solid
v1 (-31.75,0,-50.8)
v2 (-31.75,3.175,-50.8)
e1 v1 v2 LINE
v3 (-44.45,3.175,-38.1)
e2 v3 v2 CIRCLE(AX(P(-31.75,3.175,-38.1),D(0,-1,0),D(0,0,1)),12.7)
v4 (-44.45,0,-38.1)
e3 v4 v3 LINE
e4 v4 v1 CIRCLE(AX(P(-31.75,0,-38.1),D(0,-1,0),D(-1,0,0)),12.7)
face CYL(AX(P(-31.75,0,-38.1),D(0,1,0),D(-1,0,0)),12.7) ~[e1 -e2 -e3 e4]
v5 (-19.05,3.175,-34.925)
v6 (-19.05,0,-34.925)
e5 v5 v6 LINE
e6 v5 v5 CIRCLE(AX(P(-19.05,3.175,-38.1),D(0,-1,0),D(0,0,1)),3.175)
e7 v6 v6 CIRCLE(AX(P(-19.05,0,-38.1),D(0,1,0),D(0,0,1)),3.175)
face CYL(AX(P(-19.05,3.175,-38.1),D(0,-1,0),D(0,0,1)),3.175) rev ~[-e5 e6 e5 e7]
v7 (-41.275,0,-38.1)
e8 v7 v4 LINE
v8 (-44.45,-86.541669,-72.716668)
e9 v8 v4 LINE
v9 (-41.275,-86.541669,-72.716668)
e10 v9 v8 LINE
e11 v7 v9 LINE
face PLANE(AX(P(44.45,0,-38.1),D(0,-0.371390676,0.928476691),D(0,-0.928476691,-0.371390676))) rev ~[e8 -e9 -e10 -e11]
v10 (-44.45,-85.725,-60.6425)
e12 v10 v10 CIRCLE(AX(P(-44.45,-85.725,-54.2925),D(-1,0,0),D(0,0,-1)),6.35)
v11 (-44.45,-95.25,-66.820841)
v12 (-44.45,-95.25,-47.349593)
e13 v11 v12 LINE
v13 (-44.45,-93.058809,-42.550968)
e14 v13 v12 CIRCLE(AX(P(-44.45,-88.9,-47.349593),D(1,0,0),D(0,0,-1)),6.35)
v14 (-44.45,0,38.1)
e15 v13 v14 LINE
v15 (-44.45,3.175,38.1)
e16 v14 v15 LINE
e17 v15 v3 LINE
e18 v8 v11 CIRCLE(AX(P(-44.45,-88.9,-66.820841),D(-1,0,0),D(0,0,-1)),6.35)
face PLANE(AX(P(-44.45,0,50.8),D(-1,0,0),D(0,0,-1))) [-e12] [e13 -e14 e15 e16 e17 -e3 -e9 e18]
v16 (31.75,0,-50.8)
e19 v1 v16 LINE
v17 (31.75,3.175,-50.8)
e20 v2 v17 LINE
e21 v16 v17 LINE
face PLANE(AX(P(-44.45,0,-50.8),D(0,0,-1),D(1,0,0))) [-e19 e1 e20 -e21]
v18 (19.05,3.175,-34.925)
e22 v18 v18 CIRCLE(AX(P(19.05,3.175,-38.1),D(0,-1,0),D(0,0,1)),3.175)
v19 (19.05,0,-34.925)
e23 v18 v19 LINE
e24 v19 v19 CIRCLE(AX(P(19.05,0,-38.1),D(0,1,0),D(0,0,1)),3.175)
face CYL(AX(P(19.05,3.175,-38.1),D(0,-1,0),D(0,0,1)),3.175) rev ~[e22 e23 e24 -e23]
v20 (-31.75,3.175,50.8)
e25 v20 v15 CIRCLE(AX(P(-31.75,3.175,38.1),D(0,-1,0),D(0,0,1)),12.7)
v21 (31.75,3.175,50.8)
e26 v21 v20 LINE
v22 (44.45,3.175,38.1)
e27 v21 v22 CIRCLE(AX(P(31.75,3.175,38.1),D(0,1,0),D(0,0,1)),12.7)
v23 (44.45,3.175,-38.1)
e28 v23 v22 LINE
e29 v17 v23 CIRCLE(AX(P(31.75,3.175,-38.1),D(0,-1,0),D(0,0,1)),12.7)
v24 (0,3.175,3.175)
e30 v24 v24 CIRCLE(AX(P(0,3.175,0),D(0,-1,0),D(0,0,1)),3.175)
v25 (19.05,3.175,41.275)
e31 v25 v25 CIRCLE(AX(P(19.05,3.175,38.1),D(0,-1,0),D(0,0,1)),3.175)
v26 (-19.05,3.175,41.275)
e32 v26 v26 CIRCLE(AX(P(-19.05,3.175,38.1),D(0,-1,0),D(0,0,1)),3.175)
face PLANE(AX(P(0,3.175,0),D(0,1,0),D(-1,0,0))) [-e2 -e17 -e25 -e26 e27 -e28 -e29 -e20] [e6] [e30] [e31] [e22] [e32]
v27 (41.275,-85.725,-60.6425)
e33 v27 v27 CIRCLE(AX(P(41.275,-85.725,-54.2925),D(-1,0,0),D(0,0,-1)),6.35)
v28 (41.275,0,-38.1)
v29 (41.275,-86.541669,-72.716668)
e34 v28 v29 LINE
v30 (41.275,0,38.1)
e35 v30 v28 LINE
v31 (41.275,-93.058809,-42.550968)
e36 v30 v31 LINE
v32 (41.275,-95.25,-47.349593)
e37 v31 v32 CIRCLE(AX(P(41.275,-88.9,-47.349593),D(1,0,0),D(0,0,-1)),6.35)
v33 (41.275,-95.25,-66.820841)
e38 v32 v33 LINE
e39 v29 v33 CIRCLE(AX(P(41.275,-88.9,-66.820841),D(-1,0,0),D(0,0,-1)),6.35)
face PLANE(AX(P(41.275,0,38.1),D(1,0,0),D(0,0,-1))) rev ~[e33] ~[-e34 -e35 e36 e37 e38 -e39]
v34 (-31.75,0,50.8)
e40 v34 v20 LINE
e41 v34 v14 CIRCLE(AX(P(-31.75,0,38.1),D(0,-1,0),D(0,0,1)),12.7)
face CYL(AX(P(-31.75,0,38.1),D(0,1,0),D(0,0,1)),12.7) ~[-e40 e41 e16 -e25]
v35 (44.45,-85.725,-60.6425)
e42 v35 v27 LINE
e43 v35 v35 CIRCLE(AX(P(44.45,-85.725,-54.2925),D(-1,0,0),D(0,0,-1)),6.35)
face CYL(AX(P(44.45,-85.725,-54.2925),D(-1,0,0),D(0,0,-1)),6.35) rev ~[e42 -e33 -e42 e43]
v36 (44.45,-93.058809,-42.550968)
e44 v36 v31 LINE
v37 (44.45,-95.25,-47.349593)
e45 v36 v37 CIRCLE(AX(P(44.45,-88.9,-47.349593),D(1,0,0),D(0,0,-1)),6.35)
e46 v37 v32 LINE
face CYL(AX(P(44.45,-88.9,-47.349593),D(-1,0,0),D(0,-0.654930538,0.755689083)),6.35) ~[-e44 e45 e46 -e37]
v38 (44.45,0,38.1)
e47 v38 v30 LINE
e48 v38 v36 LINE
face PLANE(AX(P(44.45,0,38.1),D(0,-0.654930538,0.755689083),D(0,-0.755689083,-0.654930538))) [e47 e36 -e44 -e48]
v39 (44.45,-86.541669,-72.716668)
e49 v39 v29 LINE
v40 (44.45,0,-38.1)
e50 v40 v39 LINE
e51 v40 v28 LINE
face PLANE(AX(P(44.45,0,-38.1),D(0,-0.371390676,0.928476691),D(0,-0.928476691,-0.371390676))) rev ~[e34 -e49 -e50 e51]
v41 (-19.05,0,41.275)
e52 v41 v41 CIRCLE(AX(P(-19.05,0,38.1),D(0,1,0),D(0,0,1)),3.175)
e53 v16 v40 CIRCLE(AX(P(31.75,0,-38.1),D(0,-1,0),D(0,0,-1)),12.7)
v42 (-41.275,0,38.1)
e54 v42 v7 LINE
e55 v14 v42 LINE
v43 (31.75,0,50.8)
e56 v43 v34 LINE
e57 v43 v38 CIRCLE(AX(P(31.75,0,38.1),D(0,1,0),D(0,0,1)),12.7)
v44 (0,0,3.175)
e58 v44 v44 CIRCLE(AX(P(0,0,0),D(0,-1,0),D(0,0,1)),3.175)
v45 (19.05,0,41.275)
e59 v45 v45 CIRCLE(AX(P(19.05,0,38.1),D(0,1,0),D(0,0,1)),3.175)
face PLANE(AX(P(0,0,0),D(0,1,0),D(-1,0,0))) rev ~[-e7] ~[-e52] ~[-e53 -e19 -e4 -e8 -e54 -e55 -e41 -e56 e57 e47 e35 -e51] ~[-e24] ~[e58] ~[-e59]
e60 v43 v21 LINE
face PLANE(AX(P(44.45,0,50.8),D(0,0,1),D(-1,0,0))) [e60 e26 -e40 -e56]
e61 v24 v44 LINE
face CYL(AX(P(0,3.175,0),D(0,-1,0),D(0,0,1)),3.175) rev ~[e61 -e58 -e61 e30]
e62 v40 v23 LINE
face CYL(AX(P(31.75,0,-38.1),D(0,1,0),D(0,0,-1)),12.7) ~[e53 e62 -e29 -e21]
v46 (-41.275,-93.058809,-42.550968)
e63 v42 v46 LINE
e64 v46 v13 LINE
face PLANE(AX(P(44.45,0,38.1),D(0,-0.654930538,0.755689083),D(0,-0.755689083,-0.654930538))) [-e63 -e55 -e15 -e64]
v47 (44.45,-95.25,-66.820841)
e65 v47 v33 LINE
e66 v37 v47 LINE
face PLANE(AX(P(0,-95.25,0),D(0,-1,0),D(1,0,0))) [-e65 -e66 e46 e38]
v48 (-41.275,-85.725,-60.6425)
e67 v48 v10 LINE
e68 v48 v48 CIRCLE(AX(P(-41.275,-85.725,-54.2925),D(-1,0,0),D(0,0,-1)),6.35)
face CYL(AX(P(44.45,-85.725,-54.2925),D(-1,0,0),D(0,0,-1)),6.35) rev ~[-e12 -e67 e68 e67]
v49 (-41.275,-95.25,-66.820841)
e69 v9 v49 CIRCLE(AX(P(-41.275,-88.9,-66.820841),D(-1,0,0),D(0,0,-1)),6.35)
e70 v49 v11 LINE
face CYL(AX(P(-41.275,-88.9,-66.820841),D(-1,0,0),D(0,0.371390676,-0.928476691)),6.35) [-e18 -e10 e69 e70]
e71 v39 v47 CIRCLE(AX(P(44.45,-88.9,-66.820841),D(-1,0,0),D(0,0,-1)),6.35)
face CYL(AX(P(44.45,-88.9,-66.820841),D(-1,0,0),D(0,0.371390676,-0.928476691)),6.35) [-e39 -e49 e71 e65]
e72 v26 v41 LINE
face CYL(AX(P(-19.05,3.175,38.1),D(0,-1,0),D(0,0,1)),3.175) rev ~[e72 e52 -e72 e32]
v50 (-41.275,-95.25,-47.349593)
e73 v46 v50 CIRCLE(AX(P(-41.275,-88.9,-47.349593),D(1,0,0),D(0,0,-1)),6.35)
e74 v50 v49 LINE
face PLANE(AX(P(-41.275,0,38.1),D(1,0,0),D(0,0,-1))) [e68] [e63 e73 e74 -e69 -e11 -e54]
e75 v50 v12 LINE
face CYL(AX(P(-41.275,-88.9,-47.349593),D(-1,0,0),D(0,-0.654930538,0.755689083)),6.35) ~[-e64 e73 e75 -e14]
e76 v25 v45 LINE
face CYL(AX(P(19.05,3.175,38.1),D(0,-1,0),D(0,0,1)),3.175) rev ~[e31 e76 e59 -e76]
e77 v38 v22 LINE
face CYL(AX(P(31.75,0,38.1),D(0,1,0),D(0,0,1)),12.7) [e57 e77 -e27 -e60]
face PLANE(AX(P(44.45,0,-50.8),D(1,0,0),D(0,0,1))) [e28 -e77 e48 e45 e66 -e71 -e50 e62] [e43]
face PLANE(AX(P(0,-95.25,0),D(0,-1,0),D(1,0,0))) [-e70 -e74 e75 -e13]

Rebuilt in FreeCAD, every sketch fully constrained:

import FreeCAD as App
import Part
import Sketcher
from FreeCAD import Vector
Q = App.Units.Quantity


def edges_at(feature, points):
    """Names of the edges that pass closest to the given points."""
    edges = feature.Shape.Edges
    near = lambda p: min(range(len(edges)), key=lambda i: edges[i].distToShape(Part.Vertex(*p))[0])
    return sorted({f"Edge{near(p) + 1}" for p in points})

doc = App.newDocument("Part")
body = doc.addObject("PartDesign::Body", "Body")

sketch1 = body.newObject("Sketcher::SketchObject", "Sketch")
sketch1.AttachmentSupport = (doc.getObject("XZ_Plane"), [""])
sketch1.MapMode = "FlatFace"
sketch1.addGeometry([
    Part.LineSegment(Vector(-44.45, 50.8, 0), Vector(44.45, 50.8, 0)),
    Part.LineSegment(Vector(44.45, 50.8, 0), Vector(44.45, -50.8, 0)),
    Part.LineSegment(Vector(44.45, -50.8, 0), Vector(-44.45, -50.8, 0)),
    Part.LineSegment(Vector(-44.45, -50.8, 0), Vector(-44.45, 50.8, 0)),
], False)
sketch1.addConstraint([
    Sketcher.Constraint("Coincident", 0, 2, 1, 1),
    Sketcher.Constraint("Coincident", 1, 2, 2, 1),
    Sketcher.Constraint("Coincident", 2, 2, 3, 1),
    Sketcher.Constraint("Coincident", 3, 2, 0, 1),
    Sketcher.Constraint("Horizontal", 0),
    Sketcher.Constraint("Vertical", 1),
    Sketcher.Constraint("Horizontal", 2),
    Sketcher.Constraint("Vertical", 3),
    Sketcher.Constraint("Symmetric", 0, 2, 2, 2, -1, 1),
    Sketcher.Constraint("DistanceY", -1, 1, 0, 2, Q("2 in")),
    Sketcher.Constraint("DistanceX", -1, 1, 0, 2, Q("1.75 in")),
])
pad1 = body.newObject("PartDesign::Pad", "Pad")
pad1.Profile = sketch1
pad1.Length = Q("0.125 in")
pad1.Reversed = True
doc.recompute()

fillet = body.newObject("PartDesign::Fillet", "Fillet")
fillet.Base = (pad1, edges_at(pad1, [
    (44.45, 1.587, 50.8),
    (-44.45, 1.587, 50.8),
    (44.45, 1.587, -50.8),
    (-44.45, 1.587, -50.8),
]))
fillet.Radius = Q("0.5 in")

sketch2 = body.newObject("Sketcher::SketchObject", "Sketch001")
sketch2.AttachmentSupport = (doc.getObject("XZ_Plane"), [""])
sketch2.MapMode = "FlatFace"
sketch2.AttachmentOffset = App.Placement(Vector(0, 0, -0.125 * 25.4), App.Rotation())
sketch2.addGeometry([
    Part.Circle(Vector(-19.05, -38.1, 0), Vector(0, 0, 1), 3.175),
    Part.Circle(Vector(19.05, -38.1, 0), Vector(0, 0, 1), 3.175),
    Part.Circle(Vector(19.05, 38.1, 0), Vector(0, 0, 1), 3.175),
    Part.Circle(Vector(-19.05, 38.1, 0), Vector(0, 0, 1), 3.175),
    Part.Circle(Vector(0, 0, 0), Vector(0, 0, 1), 3.175),
], False)
sketch2.addConstraint([
    Sketcher.Constraint("Coincident", 4, 3, -1, 1),
    Sketcher.Constraint("Equal", 0, 1),
    Sketcher.Constraint("Equal", 1, 2),
    Sketcher.Constraint("Equal", 2, 3),
    Sketcher.Constraint("Equal", 3, 4),
    Sketcher.Constraint("Symmetric", 0, 3, 2, 3, -1, 1),
    Sketcher.Constraint("Symmetric", 1, 3, 3, 3, -1, 1),
    Sketcher.Constraint("Symmetric", 0, 3, 1, 3, -2),
    Sketcher.Constraint("Diameter", 0, Q("0.25 in")),
    Sketcher.Constraint("DistanceY", 1, 3, 2, 3, Q("3 in")),
    Sketcher.Constraint("DistanceX", 0, 3, 1, 3, Q("1.5 in")),
])
doc.recompute()
hole = body.newObject("PartDesign::Hole", "Hole")
hole.Profile = sketch2
hole.ThreadType = "None"
hole.Diameter = Q("0.25 in")
hole.DepthType = "ThroughAll"
hole.Reversed = True

sketch3 = body.newObject("Sketcher::SketchObject", "Sketch002")
sketch3.AttachmentSupport = (doc.getObject("XZ_Plane"), [""])
sketch3.MapMode = "FlatFace"
sketch3.addGeometry([
    Part.LineSegment(Vector(44.45, -88.9, 0), Vector(44.45, 38.1, 0)),
    Part.LineSegment(Vector(44.45, 38.1, 0), Vector(41.275, 38.1, 0)),
    Part.LineSegment(Vector(41.275, 38.1, 0), Vector(41.275, -88.9, 0)),
    Part.LineSegment(Vector(41.275, -88.9, 0), Vector(44.45, -88.9, 0)),
    Part.LineSegment(Vector(-41.275, 38.1, 0), Vector(-44.45, 38.1, 0)),
    Part.LineSegment(Vector(-44.45, 38.1, 0), Vector(-44.45, -88.9, 0)),
    Part.LineSegment(Vector(-44.45, -88.9, 0), Vector(-41.275, -88.9, 0)),
    Part.LineSegment(Vector(-41.275, -88.9, 0), Vector(-41.275, 38.1, 0)),
], False)
sketch3.addConstraint([
    Sketcher.Constraint("Coincident", 0, 2, 1, 1),
    Sketcher.Constraint("Coincident", 1, 2, 2, 1),
    Sketcher.Constraint("Coincident", 2, 2, 3, 1),
    Sketcher.Constraint("Coincident", 3, 2, 0, 1),
    Sketcher.Constraint("Coincident", 4, 2, 5, 1),
    Sketcher.Constraint("Coincident", 5, 2, 6, 1),
    Sketcher.Constraint("Coincident", 6, 2, 7, 1),
    Sketcher.Constraint("Coincident", 7, 2, 4, 1),
    Sketcher.Constraint("Vertical", 0),
    Sketcher.Constraint("Horizontal", 1),
    Sketcher.Constraint("Vertical", 2),
    Sketcher.Constraint("Horizontal", 3),
    Sketcher.Constraint("Horizontal", 4),
    Sketcher.Constraint("Vertical", 5),
    Sketcher.Constraint("Horizontal", 6),
    Sketcher.Constraint("Vertical", 7),
    Sketcher.Constraint("Symmetric", 0, 2, 4, 2, -2),
    Sketcher.Constraint("Symmetric", 2, 2, 6, 2, -2),
    Sketcher.Constraint("DistanceY", 0, 1, 0, 2, Q("5 in")),
    Sketcher.Constraint("DistanceX", 1, 2, 1, 1, Q("0.125 in")),
    Sketcher.Constraint("DistanceY", -1, 1, 0, 2, Q("1.5 in")),
    Sketcher.Constraint("DistanceX", 4, 2, 0, 2, Q("3.5 in")),
])
pad2 = body.newObject("PartDesign::Pad", "Pad001")
pad2.Profile = sketch3
pad2.Length = Q("3.75 in")

sketch4 = body.newObject("Sketcher::SketchObject", "Sketch003")
sketch4.AttachmentSupport = (doc.getObject("YZ_Plane"), [""])
sketch4.MapMode = "FlatFace"
sketch4.AttachmentOffset = App.Placement(Vector(0, 0, 1.75 * 25.4), App.Rotation())
sketch4.addGeometry([
    Part.LineSegment(Vector(-95.25, -44.45, 0), Vector(0, 38.1, 0)),
    Part.LineSegment(Vector(0, 38.1, 0), Vector(-95.25, 38.1, 0)),
    Part.LineSegment(Vector(-95.25, 38.1, 0), Vector(-95.25, -44.45, 0)),
    Part.LineSegment(Vector(0, -38.1, 0), Vector(-95.25, -76.2, 0)),
    Part.LineSegment(Vector(-95.25, -76.2, 0), Vector(-95.25, -88.9, 0)),
    Part.LineSegment(Vector(-95.25, -88.9, 0), Vector(0, -88.9, 0)),
    Part.LineSegment(Vector(0, -88.9, 0), Vector(0, -38.1, 0)),
], False)
sketch4.addConstraint([
    Sketcher.Constraint("Coincident", 0, 2, 1, 1),
    Sketcher.Constraint("Coincident", 1, 2, 2, 1),
    Sketcher.Constraint("Coincident", 2, 2, 0, 1),
    Sketcher.Constraint("Coincident", 3, 2, 4, 1),
    Sketcher.Constraint("Coincident", 4, 2, 5, 1),
    Sketcher.Constraint("Coincident", 5, 2, 6, 1),
    Sketcher.Constraint("Coincident", 6, 2, 3, 1),
    Sketcher.Constraint("Horizontal", 1),
    Sketcher.Constraint("Vertical", 2),
    Sketcher.Constraint("Vertical", 4),
    Sketcher.Constraint("Horizontal", 5),
    Sketcher.Constraint("Vertical", 6),
    Sketcher.Constraint("Symmetric", 0, 2, 6, 2, -1, 1),
    Sketcher.Constraint("PointOnObject", 0, 2, -2),
    Sketcher.Constraint("Vertical", 2, 2, 3, 2),
    Sketcher.Constraint("DistanceY", 4, 2, 4, 1, Q("0.5 in")),
    Sketcher.Constraint("DistanceY", 6, 1, 6, 2, Q("2 in")),
    Sketcher.Constraint("DistanceY", 3, 2, 2, 2, Q("1.25 in")),
    Sketcher.Constraint("DistanceY", 3, 2, -1, 1, Q("3 in")),
    Sketcher.Constraint("DistanceX", 1, 2, 1, 1, Q("3.75 in")),
])
pocket1 = body.newObject("PartDesign::Pocket", "Pocket")
pocket1.Profile = sketch4
pocket1.Length = Q("5 in")

sketch5 = body.newObject("Sketcher::SketchObject", "Sketch004")
sketch5.AttachmentSupport = (doc.getObject("YZ_Plane"), [""])
sketch5.MapMode = "FlatFace"
sketch5.AttachmentOffset = App.Placement(Vector(0, 0, 1.75 * 25.4), App.Rotation())
sketch5.addGeometry(Part.Circle(Vector(-85.725, -54.2925, 0), Vector(0, 0, 1), 6.35), False)
sketch5.addConstraint([
    Sketcher.Constraint("Diameter", 0, Q("0.5 in")),
    Sketcher.Constraint("DistanceX", 0, 3, -1, 1, Q("3.375 in")),
    Sketcher.Constraint("DistanceY", 0, 3, -1, 1, Q("2.1375 in")),
])
doc.recompute()
hole2 = body.newObject("PartDesign::Hole", "Hole001")
hole2.Profile = sketch5
hole2.ThreadType = "None"
hole2.Diameter = Q("0.5 in")
hole2.DepthType = "ThroughAll"
doc.recompute()

fillet2 = body.newObject("PartDesign::Fillet", "Fillet001")
fillet2.Base = (hole2, edges_at(hole2, [
    (42.862, -95.25, -44.45),
    (-42.862, -95.25, -44.45),
    (-42.862, -95.25, -76.2),
    (42.862, -95.25, -76.2),
]))
fillet2.Radius = Q("0.25 in")

doc.recompute()
